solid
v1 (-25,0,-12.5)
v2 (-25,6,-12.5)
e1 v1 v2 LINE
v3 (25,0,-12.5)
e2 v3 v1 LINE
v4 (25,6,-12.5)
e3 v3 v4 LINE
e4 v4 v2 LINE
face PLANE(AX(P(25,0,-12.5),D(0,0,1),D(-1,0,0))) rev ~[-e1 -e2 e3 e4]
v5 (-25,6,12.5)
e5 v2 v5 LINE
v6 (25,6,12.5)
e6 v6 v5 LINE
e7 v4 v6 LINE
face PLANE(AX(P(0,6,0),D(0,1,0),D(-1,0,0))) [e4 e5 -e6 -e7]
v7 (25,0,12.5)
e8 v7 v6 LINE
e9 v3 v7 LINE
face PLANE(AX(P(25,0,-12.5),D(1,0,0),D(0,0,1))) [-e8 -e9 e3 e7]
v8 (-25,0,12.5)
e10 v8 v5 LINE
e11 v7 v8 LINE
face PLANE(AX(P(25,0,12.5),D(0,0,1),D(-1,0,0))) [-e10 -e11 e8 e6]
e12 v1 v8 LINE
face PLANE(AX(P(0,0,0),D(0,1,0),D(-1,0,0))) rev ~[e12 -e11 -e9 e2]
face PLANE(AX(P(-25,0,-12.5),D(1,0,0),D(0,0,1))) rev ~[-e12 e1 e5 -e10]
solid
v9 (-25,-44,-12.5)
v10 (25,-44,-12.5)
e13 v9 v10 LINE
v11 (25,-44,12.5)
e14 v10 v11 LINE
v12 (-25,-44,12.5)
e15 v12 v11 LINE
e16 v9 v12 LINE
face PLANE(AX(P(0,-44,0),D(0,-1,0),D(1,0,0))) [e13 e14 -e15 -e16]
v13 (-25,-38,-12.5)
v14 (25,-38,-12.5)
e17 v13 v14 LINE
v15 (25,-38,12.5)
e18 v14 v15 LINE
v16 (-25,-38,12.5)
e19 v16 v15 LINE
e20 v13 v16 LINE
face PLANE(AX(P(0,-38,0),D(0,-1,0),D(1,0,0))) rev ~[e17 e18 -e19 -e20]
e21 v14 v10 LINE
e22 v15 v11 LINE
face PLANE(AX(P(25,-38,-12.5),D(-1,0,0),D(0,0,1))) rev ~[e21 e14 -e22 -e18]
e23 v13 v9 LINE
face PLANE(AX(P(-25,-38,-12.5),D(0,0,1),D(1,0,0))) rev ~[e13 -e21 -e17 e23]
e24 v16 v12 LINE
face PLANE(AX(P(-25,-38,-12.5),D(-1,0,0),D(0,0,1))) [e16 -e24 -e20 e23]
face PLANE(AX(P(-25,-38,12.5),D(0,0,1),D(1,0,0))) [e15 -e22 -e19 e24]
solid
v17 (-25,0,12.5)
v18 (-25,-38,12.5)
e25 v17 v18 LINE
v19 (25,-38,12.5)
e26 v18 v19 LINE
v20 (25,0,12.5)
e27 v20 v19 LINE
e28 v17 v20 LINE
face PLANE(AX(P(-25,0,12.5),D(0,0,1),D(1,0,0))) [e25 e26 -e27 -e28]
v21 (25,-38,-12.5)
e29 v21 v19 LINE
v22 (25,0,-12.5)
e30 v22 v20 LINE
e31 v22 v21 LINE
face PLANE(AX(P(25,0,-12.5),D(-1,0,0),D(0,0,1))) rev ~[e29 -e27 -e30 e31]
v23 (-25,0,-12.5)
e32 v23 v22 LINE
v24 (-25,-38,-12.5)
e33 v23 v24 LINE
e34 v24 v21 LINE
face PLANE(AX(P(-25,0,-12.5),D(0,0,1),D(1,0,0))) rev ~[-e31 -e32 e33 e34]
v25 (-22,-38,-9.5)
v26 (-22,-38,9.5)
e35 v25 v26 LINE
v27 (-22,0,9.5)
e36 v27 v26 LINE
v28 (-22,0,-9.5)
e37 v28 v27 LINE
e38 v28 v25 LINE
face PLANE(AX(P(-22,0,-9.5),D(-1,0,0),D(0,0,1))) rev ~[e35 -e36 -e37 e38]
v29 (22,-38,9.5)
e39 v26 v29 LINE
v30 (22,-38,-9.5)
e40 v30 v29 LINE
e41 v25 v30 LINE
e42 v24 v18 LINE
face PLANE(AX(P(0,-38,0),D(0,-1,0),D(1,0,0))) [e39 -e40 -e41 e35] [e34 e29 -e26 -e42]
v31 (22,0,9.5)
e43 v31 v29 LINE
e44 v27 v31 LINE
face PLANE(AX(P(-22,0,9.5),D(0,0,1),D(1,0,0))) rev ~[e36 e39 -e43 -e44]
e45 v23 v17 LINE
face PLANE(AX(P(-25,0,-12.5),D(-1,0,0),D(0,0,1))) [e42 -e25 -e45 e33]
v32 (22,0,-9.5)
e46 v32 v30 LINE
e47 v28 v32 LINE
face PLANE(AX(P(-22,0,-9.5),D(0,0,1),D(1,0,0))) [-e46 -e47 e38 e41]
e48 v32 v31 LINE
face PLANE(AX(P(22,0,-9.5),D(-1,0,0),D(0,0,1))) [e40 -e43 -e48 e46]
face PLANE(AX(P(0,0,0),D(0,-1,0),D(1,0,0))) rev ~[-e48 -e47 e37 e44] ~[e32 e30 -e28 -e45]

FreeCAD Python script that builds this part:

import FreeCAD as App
import Part
import Sketcher

V = App.Vector


def add_polygon(sketch, points):
    """Adds a closed chain of lines whose ends are joined by coincident constraints."""
    first, n = sketch.GeometryCount, len(points)
    for a, b in zip(points, points[1:] + points[:1]):
        sketch.addGeometry(Part.LineSegment(App.Vector(*a, 0), App.Vector(*b, 0)), False)
    for i in range(n):
        sketch.addConstraint(Sketcher.Constraint("Coincident", first + i, 2, first + (i + 1) % n, 1))

doc = App.newDocument("Part")
body = doc.addObject("PartDesign::Body", "Body")

# Sketch on XZ plane
sketch1 = body.newObject("Sketcher::SketchObject", "Sketch")
sketch1.AttachmentSupport = (doc.getObject("XZ_Plane"), [""])
sketch1.MapMode = "FlatFace"
add_polygon(sketch1, [(-25, 12), (-25, -12), (25, -12), (25, 12)])  # lines 0-3
add_polygon(sketch1, [(22, -10), (-22, -10), (-22, 10), (22, 10)])  # lines 4-7
sketch1.addConstraint([
    Sketcher.Constraint("Vertical", 0),
    Sketcher.Constraint("Horizontal", 1),
    Sketcher.Constraint("Vertical", 2),
    Sketcher.Constraint("Horizontal", 3),
    Sketcher.Constraint("Horizontal", 4),
    Sketcher.Constraint("Vertical", 5),
    Sketcher.Constraint("Horizontal", 6),
    Sketcher.Constraint("Vertical", 7),
    Sketcher.Constraint("Symmetric", 0, 2, 2, 2, -1, 1),
    Sketcher.Constraint("Symmetric", 4, 2, 6, 2, -1, 1),
    Sketcher.Constraint("DistanceX", 1, 1, 1, 2, 50.0),
    Sketcher.Constraint("DistanceX", 4, 2, 4, 1, 44.0),
    Sketcher.Constraint("DistanceY", 0, 2, 0, 1, 25.0),
    Sketcher.Constraint("DistanceY", 5, 1, 5, 2, 19.0),
])
pad1 = body.newObject("PartDesign::Pad", "Pad")
pad1.Profile = sketch1
pad1.Length = 38
body2 = doc.addObject("PartDesign::Body", "Body001")

# Sketch on XZ plane
sketch2 = body2.newObject("Sketcher::SketchObject", "Sketch001")
sketch2.AttachmentSupport = (doc.getObject("XZ_Plane001"), [""])
sketch2.MapMode = "FlatFace"
add_polygon(sketch2, [(25, 12), (25, -12), (-25, -12), (-25, 12)])  # lines 0-3
sketch2.addConstraint([
    Sketcher.Constraint("Vertical", 0),
    Sketcher.Constraint("Horizontal", 1),
    Sketcher.Constraint("Vertical", 2),
    Sketcher.Constraint("Horizontal", 3),
    Sketcher.Constraint("Symmetric", 0, 2, 2, 2, -1, 1),
    Sketcher.Constraint("DistanceX", 1, 2, 1, 1, 50.0),
    Sketcher.Constraint("DistanceY", 0, 2, 0, 1, 25.0),
])
pad2 = body2.newObject("PartDesign::Pad", "Pad001")
pad2.Profile = sketch2
pad2.Length = 6
pad2.Reversed = True
body3 = doc.addObject("PartDesign::Body", "Body002")

# Sketch on XZ plane
sketch3 = body3.newObject("Sketcher::SketchObject", "Sketch002")
sketch3.AttachmentSupport = (doc.getObject("XZ_Plane002"), [""])
sketch3.MapMode = "FlatFace"
sketch3.AttachmentOffset = App.Placement(V(0, 0, 38), App.Rotation())
add_polygon(sketch3, [(-25, 12), (-25, -12), (25, -12), (25, 12)])  # lines 0-3
sketch3.addConstraint([
    Sketcher.Constraint("Vertical", 0),
    Sketcher.Constraint("Horizontal", 1),
    Sketcher.Constraint("Vertical", 2),
    Sketcher.Constraint("Horizontal", 3),
    Sketcher.Constraint("Symmetric", 0, 2, 2, 2, -1, 1),
    Sketcher.Constraint("DistanceX", 1, 1, 1, 2, 50.0),
    Sketcher.Constraint("DistanceY", 0, 2, 0, 1, 25.0),
])
pad3 = body3.newObject("PartDesign::Pad", "Pad002")
pad3.Profile = sketch3
pad3.Length = 6

doc.recompute()
